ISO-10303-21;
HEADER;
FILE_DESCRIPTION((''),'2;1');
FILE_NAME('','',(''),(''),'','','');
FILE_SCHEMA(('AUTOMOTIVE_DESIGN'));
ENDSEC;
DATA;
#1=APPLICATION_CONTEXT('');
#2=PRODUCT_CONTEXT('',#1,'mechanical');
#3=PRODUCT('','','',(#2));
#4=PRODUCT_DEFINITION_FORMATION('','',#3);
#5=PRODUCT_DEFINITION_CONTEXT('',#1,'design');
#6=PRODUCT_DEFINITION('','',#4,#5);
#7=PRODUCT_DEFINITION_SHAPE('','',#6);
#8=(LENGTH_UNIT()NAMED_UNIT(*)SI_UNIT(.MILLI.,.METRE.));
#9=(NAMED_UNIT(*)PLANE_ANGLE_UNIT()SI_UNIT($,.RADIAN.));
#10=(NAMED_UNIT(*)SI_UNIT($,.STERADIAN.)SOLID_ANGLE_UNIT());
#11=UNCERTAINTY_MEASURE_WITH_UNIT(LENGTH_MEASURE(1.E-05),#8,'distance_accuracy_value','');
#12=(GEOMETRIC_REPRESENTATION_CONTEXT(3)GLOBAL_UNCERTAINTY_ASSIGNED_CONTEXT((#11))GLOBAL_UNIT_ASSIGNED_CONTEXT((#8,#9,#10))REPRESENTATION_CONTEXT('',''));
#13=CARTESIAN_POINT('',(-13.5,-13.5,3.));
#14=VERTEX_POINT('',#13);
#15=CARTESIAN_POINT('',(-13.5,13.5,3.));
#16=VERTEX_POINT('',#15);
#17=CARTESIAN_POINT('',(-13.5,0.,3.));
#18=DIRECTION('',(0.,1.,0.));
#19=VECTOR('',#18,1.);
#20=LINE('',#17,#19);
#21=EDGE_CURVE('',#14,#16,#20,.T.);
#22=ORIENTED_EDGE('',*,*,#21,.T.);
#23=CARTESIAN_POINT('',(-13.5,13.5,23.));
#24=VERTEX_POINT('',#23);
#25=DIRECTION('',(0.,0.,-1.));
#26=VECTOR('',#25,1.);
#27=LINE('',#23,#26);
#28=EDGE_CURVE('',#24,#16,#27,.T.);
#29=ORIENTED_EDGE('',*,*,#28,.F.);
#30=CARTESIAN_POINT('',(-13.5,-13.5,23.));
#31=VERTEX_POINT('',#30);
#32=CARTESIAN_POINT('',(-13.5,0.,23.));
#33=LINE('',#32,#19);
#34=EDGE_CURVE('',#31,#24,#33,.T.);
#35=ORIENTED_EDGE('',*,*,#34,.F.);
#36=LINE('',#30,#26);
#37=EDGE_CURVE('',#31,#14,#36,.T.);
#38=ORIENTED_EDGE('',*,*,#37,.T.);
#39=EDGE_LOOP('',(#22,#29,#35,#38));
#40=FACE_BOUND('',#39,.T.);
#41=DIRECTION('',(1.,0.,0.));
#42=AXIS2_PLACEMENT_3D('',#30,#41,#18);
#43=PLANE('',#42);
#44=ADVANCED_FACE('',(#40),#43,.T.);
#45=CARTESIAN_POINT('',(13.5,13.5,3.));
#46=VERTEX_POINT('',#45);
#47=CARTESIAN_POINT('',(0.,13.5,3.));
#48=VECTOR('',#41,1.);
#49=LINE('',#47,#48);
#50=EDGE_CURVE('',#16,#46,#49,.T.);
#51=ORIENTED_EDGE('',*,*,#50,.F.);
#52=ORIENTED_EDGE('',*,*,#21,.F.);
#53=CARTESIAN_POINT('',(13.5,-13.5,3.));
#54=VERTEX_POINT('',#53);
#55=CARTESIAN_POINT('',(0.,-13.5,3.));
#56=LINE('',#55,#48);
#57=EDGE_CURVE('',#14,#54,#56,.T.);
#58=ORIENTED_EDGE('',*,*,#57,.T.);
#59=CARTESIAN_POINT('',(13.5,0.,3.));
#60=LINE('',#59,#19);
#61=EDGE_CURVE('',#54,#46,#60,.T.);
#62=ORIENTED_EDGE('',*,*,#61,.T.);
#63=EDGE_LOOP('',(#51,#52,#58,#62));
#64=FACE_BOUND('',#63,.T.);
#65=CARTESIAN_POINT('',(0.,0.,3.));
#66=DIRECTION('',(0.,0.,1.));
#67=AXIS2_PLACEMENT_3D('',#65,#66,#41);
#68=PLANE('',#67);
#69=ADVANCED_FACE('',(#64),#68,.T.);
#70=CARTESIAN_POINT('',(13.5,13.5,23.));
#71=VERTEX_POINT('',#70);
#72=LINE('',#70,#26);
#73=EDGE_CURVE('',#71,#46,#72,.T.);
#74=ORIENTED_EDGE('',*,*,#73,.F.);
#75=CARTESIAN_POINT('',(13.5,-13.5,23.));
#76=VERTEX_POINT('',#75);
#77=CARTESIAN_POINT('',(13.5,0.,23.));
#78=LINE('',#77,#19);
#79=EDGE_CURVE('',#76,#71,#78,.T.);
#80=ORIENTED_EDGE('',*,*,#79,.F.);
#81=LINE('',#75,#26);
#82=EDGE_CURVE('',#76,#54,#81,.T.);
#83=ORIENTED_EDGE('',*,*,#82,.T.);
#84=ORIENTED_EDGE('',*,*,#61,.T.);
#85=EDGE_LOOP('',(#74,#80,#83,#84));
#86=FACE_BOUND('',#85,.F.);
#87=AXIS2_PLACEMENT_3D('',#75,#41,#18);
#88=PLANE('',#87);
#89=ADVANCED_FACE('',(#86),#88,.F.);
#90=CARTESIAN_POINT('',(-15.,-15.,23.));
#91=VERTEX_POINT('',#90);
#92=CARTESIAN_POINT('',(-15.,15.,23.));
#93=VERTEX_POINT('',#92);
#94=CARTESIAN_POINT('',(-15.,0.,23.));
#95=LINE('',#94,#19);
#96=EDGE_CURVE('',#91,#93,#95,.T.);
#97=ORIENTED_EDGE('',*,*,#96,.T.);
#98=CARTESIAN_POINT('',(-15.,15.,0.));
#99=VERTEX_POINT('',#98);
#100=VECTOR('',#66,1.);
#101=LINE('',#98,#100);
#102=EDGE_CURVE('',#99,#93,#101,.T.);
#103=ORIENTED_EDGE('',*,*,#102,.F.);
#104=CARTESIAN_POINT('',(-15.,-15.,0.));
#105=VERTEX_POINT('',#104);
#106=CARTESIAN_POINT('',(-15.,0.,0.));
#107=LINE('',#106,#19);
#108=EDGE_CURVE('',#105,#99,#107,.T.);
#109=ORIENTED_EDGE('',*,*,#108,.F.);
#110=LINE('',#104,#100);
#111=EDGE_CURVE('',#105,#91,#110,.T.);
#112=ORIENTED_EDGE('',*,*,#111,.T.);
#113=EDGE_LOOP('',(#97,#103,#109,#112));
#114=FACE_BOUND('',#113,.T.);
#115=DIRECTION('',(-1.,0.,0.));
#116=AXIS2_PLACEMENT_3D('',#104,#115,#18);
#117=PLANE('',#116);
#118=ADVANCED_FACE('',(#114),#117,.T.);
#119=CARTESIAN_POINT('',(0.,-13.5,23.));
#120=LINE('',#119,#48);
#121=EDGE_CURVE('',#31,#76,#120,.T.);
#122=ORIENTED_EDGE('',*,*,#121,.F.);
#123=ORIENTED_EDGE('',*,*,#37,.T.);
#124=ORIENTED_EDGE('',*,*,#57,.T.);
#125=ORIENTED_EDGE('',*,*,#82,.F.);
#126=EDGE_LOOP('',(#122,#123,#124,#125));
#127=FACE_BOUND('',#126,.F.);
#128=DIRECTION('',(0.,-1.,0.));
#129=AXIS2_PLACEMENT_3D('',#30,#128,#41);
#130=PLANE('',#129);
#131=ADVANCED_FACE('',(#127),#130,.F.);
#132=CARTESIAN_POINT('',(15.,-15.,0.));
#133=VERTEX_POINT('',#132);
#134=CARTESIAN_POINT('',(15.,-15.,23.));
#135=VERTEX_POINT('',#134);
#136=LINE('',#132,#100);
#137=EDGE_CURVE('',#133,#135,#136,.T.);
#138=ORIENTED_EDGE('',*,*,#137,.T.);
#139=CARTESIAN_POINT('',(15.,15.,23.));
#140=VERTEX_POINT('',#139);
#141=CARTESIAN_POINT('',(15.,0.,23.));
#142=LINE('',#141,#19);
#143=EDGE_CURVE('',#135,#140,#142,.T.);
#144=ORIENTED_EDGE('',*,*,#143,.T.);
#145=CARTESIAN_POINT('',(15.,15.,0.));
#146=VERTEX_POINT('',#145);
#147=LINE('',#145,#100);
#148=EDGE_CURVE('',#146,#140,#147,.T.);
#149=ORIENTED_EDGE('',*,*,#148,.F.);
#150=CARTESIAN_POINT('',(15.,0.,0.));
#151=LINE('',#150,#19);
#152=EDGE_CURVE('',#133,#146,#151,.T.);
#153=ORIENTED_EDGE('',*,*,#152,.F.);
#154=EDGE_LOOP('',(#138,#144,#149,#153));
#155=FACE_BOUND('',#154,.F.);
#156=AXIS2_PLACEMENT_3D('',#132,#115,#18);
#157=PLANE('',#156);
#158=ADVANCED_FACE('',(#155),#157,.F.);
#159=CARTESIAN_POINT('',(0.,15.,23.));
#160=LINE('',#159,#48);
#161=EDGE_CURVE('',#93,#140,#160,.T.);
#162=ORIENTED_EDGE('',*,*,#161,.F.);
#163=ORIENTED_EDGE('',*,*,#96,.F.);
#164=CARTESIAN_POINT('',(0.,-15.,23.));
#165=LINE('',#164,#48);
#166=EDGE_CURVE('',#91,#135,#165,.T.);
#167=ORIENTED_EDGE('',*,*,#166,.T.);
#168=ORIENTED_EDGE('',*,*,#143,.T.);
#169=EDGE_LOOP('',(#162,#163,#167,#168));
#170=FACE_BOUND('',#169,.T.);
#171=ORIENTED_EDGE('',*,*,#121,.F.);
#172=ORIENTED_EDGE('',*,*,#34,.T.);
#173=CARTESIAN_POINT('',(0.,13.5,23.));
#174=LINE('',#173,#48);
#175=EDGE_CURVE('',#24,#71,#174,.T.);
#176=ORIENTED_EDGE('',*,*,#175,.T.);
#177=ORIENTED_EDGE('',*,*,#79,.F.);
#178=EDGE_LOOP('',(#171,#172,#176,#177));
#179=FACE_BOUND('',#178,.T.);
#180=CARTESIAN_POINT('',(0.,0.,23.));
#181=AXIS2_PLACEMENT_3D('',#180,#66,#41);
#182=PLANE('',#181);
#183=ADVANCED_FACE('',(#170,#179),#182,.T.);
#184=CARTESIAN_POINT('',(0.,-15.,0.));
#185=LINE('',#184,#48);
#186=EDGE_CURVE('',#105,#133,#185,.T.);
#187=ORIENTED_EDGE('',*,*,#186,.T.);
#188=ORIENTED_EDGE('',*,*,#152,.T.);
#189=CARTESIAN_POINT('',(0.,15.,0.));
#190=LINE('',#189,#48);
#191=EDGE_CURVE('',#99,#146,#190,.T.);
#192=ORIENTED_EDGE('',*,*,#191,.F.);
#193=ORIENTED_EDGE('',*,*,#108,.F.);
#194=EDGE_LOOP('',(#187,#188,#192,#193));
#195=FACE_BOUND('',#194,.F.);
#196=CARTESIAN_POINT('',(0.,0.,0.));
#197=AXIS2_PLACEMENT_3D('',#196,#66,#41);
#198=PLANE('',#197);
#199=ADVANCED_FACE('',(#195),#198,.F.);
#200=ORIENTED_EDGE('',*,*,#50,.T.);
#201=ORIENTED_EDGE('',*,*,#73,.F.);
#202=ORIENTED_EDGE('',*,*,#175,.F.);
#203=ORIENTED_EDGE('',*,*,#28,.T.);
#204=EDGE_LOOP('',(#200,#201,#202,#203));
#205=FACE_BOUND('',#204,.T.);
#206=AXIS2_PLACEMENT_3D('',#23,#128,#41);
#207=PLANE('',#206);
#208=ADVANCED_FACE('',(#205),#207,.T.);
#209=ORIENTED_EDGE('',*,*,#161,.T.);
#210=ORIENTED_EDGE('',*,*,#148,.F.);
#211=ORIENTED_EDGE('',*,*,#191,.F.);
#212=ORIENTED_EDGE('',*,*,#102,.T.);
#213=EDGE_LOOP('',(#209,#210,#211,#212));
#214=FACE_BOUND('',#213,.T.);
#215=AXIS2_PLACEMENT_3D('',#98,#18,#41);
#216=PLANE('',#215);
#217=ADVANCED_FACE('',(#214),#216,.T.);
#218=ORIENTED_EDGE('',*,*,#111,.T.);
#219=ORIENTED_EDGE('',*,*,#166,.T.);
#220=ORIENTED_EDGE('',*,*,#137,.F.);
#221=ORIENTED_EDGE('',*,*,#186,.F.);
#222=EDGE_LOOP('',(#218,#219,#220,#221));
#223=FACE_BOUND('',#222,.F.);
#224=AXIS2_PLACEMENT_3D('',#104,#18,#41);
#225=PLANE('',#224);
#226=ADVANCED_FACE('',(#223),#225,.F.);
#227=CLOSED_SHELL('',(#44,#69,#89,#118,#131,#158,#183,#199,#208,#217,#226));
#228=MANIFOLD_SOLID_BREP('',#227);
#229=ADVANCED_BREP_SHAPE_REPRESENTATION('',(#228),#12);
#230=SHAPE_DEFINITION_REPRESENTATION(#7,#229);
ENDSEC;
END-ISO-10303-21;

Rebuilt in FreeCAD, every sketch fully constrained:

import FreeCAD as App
import Part
import Sketcher
from FreeCAD import Vector


def add_polygon(sketch, points):
    """Adds a closed chain of lines whose ends are joined by coincident constraints."""
    first, n = sketch.GeometryCount, len(points)
    for a, b in zip(points, points[1:] + points[:1]):
        sketch.addGeometry(Part.LineSegment(App.Vector(*a, 0), App.Vector(*b, 0)), False)
    for i in range(n):
        sketch.addConstraint(Sketcher.Constraint("Coincident", first + i, 2, first + (i + 1) % n, 1))

doc = App.newDocument("Part")
body = doc.addObject("PartDesign::Body", "Body")

# Sketch on XY plane
sketch1 = body.newObject("Sketcher::SketchObject", "Sketch")
sketch1.AttachmentSupport = (doc.getObject("XY_Plane"), [""])
sketch1.MapMode = "FlatFace"
add_polygon(sketch1, [(-15, 15), (-15, -15), (15, -15), (15, 15)])  # lines 0-3
sketch1.addConstraint([
    Sketcher.Constraint("Vertical", 0),
    Sketcher.Constraint("Horizontal", 1),
    Sketcher.Constraint("Vertical", 2),
    Sketcher.Constraint("Horizontal", 3),
    Sketcher.Constraint("Symmetric", 0, 2, 2, 2, -1, 1),
    Sketcher.Constraint("Equal", 3, 0),
    Sketcher.Constraint("DistanceX", 1, 1, 1, 2, 30.0),
])
pad1 = body.newObject("PartDesign::Pad", "Pad")
pad1.Profile = sketch1
pad1.Length = 23

# Sketch on XY plane
sketch2 = body.newObject("Sketcher::SketchObject", "Sketch001")
sketch2.AttachmentSupport = (doc.getObject("XY_Plane"), [""])
sketch2.MapMode = "FlatFace"
sketch2.AttachmentOffset = App.Placement(Vector(0, 0, 23), App.Rotation())
add_polygon(sketch2, [(-13.5, 13.5), (-13.5, -13.5), (13.5, -13.5), (13.5, 13.5)])  # lines 0-3
sketch2.addConstraint([
    Sketcher.Constraint("Vertical", 0),
    Sketcher.Constraint("Horizontal", 1),
    Sketcher.Constraint("Vertical", 2),
    Sketcher.Constraint("Horizontal", 3),
    Sketcher.Constraint("Symmetric", 0, 2, 2, 2, -1, 1),
    Sketcher.Constraint("Equal", 3, 0),
    Sketcher.Constraint("DistanceX", 1, 1, 1, 2, 27.0),
])
pocket1 = body.newObject("PartDesign::Pocket", "Pocket")
pocket1.Profile = sketch2
pocket1.Length = 20

doc.recompute()
